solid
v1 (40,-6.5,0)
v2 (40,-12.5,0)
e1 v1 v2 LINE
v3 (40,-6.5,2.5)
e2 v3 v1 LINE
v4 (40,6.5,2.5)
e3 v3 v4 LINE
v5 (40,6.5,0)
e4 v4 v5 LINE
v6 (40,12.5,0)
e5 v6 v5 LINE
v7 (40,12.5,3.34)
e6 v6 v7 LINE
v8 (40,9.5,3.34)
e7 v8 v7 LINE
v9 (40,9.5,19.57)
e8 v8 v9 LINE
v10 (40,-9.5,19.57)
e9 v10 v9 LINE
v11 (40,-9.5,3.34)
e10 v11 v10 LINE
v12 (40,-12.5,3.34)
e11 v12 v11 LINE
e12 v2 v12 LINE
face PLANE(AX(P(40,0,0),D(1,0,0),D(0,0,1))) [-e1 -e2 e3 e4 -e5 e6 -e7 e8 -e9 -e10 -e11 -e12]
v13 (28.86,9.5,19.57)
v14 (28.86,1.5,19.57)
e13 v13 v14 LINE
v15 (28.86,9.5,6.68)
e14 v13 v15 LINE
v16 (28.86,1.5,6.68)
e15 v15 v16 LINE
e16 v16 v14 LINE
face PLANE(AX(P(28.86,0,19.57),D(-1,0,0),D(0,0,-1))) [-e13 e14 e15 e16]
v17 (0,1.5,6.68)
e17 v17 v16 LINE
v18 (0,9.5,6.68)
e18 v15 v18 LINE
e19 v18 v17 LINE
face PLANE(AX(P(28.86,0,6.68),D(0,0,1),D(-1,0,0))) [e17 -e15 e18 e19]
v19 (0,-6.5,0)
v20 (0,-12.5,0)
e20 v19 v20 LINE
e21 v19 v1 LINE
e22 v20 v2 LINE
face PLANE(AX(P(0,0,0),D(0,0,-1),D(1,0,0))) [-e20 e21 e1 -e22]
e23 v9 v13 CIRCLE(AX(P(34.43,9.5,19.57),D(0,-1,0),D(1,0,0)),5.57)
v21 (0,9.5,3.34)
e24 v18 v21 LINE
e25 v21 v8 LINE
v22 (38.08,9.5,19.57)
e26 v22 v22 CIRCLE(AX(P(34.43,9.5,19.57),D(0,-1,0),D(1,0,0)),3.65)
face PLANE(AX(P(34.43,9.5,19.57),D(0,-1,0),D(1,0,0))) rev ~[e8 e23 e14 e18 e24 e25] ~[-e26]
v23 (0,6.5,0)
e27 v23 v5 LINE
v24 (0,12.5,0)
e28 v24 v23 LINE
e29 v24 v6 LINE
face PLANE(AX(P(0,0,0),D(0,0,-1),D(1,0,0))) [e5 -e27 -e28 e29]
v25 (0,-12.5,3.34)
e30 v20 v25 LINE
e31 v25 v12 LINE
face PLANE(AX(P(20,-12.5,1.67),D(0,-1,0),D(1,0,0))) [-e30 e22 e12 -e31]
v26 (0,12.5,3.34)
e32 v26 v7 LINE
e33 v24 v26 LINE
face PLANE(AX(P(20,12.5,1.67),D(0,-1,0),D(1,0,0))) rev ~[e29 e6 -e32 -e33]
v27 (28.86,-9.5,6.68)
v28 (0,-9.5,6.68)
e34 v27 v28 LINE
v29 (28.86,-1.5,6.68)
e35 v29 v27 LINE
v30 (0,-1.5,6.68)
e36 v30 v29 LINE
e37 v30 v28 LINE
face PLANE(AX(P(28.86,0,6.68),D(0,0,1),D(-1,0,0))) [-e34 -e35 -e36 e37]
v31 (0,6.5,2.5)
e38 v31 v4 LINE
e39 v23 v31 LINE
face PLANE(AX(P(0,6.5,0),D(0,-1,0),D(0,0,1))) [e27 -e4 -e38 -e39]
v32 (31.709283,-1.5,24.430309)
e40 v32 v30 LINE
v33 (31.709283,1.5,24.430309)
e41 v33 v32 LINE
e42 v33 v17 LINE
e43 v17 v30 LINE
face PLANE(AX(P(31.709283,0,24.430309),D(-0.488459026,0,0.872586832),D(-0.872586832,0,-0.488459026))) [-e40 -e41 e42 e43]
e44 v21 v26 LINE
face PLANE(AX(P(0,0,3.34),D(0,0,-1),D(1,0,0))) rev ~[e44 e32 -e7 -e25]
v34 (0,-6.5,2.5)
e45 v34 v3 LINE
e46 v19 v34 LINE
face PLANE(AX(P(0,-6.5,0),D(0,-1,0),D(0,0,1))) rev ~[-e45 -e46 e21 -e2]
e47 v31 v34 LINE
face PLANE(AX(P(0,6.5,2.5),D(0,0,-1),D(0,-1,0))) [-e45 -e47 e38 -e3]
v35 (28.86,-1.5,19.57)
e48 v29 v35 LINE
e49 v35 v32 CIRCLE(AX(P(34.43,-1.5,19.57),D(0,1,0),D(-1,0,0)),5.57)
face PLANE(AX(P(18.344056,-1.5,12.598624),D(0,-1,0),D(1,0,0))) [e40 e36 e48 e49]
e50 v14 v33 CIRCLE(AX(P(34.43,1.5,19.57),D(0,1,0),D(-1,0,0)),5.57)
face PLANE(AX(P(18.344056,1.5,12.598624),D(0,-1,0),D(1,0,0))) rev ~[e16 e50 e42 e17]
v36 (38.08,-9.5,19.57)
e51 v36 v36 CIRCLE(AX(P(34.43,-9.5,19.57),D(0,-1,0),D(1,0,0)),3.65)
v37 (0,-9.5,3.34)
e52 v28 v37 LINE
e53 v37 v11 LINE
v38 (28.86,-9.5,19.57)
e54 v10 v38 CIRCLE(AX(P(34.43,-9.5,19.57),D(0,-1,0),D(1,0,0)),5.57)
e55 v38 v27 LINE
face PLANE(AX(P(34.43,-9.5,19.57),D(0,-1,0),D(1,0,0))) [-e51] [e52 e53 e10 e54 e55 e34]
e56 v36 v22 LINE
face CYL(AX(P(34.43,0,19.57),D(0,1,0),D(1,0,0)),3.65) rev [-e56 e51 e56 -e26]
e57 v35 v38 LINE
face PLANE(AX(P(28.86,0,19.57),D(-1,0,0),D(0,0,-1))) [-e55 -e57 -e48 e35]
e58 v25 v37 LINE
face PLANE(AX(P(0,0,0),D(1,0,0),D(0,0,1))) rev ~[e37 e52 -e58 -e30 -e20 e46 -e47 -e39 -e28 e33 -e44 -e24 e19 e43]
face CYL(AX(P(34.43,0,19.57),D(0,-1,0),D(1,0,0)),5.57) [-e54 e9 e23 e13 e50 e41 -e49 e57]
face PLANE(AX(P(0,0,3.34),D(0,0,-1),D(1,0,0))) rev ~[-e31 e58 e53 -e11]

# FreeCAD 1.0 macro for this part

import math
import FreeCAD as App
import Part
import Sketcher

doc = App.newDocument("Part")
body = doc.addObject("PartDesign::Body", "Body")

# Sketch on XZ plane
sketch1 = body.newObject("Sketcher::SketchObject", "Sketch")
sketch1.AttachmentSupport = (doc.getObject("XZ_Plane"), [""])
sketch1.MapMode = "FlatFace"
sketch1.addGeometry(Part.ArcOfCircle(Part.Circle(App.Vector(34.43, 19.57, 0), App.Vector(0, 0, 1), 5.57), math.radians(0), math.radians(180)), False)
sketch1.addGeometry(Part.LineSegment(App.Vector(28.86, 19.57, 0), App.Vector(28.86, 6.68, 0)), False)
sketch1.addGeometry(Part.LineSegment(App.Vector(28.86, 6.68, 0), App.Vector(0, 6.68, 0)), False)
sketch1.addGeometry(Part.LineSegment(App.Vector(0, 6.68, 0), App.Vector(0, 3.34, 0)), False)
sketch1.addGeometry(Part.LineSegment(App.Vector(0, 3.34, 0), App.Vector(40, 3.34, 0)), False)
sketch1.addGeometry(Part.LineSegment(App.Vector(40, 3.34, 0), App.Vector(40, 19.57, 0)), False)
sketch1.addGeometry(Part.Circle(App.Vector(34.43, 19.57, 0), App.Vector(0, 0, 1), 3.65), False)
sketch1.addConstraint(Sketcher.Constraint("Tangent", 0, 2, 1, 1))
sketch1.addConstraint(Sketcher.Constraint("Coincident", 1, 2, 2, 1))
sketch1.addConstraint(Sketcher.Constraint("Coincident", 2, 2, 3, 1))
sketch1.addConstraint(Sketcher.Constraint("Coincident", 3, 2, 4, 1))
sketch1.addConstraint(Sketcher.Constraint("Coincident", 4, 2, 5, 1))
sketch1.addConstraint(Sketcher.Constraint("Tangent", 5, 2, 0, 1))
sketch1.addConstraint(Sketcher.Constraint("Vertical", 1))
sketch1.addConstraint(Sketcher.Constraint("Horizontal", 2))
sketch1.addConstraint(Sketcher.Constraint("Vertical", 3))
sketch1.addConstraint(Sketcher.Constraint("Horizontal", 4))
sketch1.addConstraint(Sketcher.Constraint("Vertical", 5))
sketch1.addConstraint(Sketcher.Constraint("Coincident", 6, 3, 0, 3))
sketch1.addConstraint(Sketcher.Constraint("PointOnObject", 2, 2, -2))
sketch1.addConstraint(Sketcher.Constraint("Diameter", 6, 7.3))
sketch1.addConstraint(Sketcher.Constraint("DistanceX", 4, 1, 4, 2, 40.0))
sketch1.addConstraint(Sketcher.Constraint("Radius", 0, 5.57))
sketch1.addConstraint(Sketcher.Constraint("DistanceY", 1, 2, 1, 1, 12.89))
sketch1.addConstraint(Sketcher.Constraint("DistanceY", 3, 2, 3, 1, 3.34))
sketch1.addConstraint(Sketcher.Constraint("DistanceY", -1, 1, 0, 3, 19.57))
pad1 = body.newObject("PartDesign::Pad", "Pad")
pad1.Profile = sketch1
pad1.Length = 19
pad1.Midplane = True

# Sketch on XZ plane
sketch2 = body.newObject("Sketcher::SketchObject", "Sketch001")
sketch2.AttachmentSupport = (doc.getObject("XZ_Plane"), [""])
sketch2.MapMode = "FlatFace"
sketch2.addGeometry(Part.LineSegment(App.Vector(0, 3.34, 0), App.Vector(0, 0, 0)), False)
sketch2.addGeometry(Part.LineSegment(App.Vector(0, 0, 0), App.Vector(40, 0, 0)), False)
sketch2.addGeometry(Part.LineSegment(App.Vector(40, 0, 0), App.Vector(40, 3.34, 0)), False)
sketch2.addGeometry(Part.LineSegment(App.Vector(40, 3.34, 0), App.Vector(0, 3.34, 0)), False)
sketch2.addConstraint(Sketcher.Constraint("Coincident", 0, 2, 1, 1))
sketch2.addConstraint(Sketcher.Constraint("Coincident", 1, 2, 2, 1))
sketch2.addConstraint(Sketcher.Constraint("Coincident", 2, 2, 3, 1))
sketch2.addConstraint(Sketcher.Constraint("Coincident", 3, 2, 0, 1))
sketch2.addConstraint(Sketcher.Constraint("Vertical", 0))
sketch2.addConstraint(Sketcher.Constraint("Horizontal", 1))
sketch2.addConstraint(Sketcher.Constraint("Vertical", 2))
sketch2.addConstraint(Sketcher.Constraint("Horizontal", 3))
sketch2.addConstraint(Sketcher.Constraint("Coincident", 0, 2, -1, 1))
sketch2.addConstraint(Sketcher.Constraint("DistanceX", 1, 1, 1, 2, 40.0))
sketch2.addConstraint(Sketcher.Constraint("DistanceY", 0, 2, 0, 1, 3.34))
pad2 = body.newObject("PartDesign::Pad", "Pad001")
pad2.Profile = sketch2
pad2.Length = 25
pad2.Midplane = True

# Sketch on XZ plane
sketch3 = body.newObject("Sketcher::SketchObject", "Sketch002")
sketch3.AttachmentSupport = (doc.getObject("XZ_Plane"), [""])
sketch3.MapMode = "FlatFace"
sketch3.addGeometry(Part.ArcOfCircle(Part.Circle(App.Vector(34.43, 19.57, 0), App.Vector(0, 0, 1), 5.57), math.radians(119.239348), math.radians(180)), False)
sketch3.addGeometry(Part.LineSegment(App.Vector(31.709283, 24.430309, 0), App.Vector(0, 6.68, 0)), False)
sketch3.addGeometry(Part.LineSegment(App.Vector(0, 6.68, 0), App.Vector(28.86, 6.68, 0)), False)
sketch3.addGeometry(Part.LineSegment(App.Vector(28.86, 6.68, 0), App.Vector(28.86, 19.57, 0)), False)
sketch3.addConstraint(Sketcher.Constraint("Tangent", 0, 1, 1, 1))
sketch3.addConstraint(Sketcher.Constraint("Coincident", 1, 2, 2, 1))
sketch3.addConstraint(Sketcher.Constraint("Coincident", 2, 2, 3, 1))
sketch3.addConstraint(Sketcher.Constraint("Tangent", 3, 2, 0, 2))
sketch3.addConstraint(Sketcher.Constraint("Horizontal", 2))
sketch3.addConstraint(Sketcher.Constraint("Vertical", 3))
sketch3.addConstraint(Sketcher.Constraint("PointOnObject", 1, 2, -2))
sketch3.addConstraint(Sketcher.Constraint("Radius", 0, 5.57))
sketch3.addConstraint(Sketcher.Constraint("DistanceX", 2, 1, 2, 2, 28.86))
sketch3.addConstraint(Sketcher.Constraint("DistanceY", 3, 1, 3, 2, 12.89))
sketch3.addConstraint(Sketcher.Constraint("DistanceY", -1, 1, 0, 3, 19.57))
pad3 = body.newObject("PartDesign::Pad", "Pad002")
pad3.Profile = sketch3
pad3.Length = 3
pad3.Midplane = True

# Sketch on YZ plane
sketch4 = body.newObject("Sketcher::SketchObject", "Sketch003")
sketch4.AttachmentSupport = (doc.getObject("YZ_Plane"), [""])
sketch4.MapMode = "FlatFace"
sketch4.addGeometry(Part.LineSegment(App.Vector(6.5, 2.5, 0), App.Vector(6.5, 0, 0)), False)
sketch4.addGeometry(Part.LineSegment(App.Vector(6.5, 0, 0), App.Vector(-6.5, 0, 0)), False)
sketch4.addGeometry(Part.LineSegment(App.Vector(-6.5, 0, 0), App.Vector(-6.5, 2.5, 0)), False)
sketch4.addGeometry(Part.LineSegment(App.Vector(-6.5, 2.5, 0), App.Vector(6.5, 2.5, 0)), False)
sketch4.addConstraint(Sketcher.Constraint("Coincident", 0, 2, 1, 1))
sketch4.addConstraint(Sketcher.Constraint("Coincident", 1, 2, 2, 1))
sketch4.addConstraint(Sketcher.Constraint("Coincident", 2, 2, 3, 1))
sketch4.addConstraint(Sketcher.Constraint("Coincident", 3, 2, 0, 1))
sketch4.addConstraint(Sketcher.Constraint("Vertical", 0))
sketch4.addConstraint(Sketcher.Constraint("Horizontal", 1))
sketch4.addConstraint(Sketcher.Constraint("Vertical", 2))
sketch4.addConstraint(Sketcher.Constraint("Horizontal", 3))
sketch4.addConstraint(Sketcher.Constraint("Symmetric", 0, 2, 1, 2, -1, 1))
sketch4.addConstraint(Sketcher.Constraint("DistanceX", 1, 2, 1, 1, 13.0))
sketch4.addConstraint(Sketcher.Constraint("DistanceY", 0, 2, 0, 1, 2.5))
pocket1 = body.newObject("PartDesign::Pocket", "Pocket")
pocket1.Profile = sketch4
pocket1.Type = "ThroughAll"
pocket1.Reversed = True

doc.recompute()
